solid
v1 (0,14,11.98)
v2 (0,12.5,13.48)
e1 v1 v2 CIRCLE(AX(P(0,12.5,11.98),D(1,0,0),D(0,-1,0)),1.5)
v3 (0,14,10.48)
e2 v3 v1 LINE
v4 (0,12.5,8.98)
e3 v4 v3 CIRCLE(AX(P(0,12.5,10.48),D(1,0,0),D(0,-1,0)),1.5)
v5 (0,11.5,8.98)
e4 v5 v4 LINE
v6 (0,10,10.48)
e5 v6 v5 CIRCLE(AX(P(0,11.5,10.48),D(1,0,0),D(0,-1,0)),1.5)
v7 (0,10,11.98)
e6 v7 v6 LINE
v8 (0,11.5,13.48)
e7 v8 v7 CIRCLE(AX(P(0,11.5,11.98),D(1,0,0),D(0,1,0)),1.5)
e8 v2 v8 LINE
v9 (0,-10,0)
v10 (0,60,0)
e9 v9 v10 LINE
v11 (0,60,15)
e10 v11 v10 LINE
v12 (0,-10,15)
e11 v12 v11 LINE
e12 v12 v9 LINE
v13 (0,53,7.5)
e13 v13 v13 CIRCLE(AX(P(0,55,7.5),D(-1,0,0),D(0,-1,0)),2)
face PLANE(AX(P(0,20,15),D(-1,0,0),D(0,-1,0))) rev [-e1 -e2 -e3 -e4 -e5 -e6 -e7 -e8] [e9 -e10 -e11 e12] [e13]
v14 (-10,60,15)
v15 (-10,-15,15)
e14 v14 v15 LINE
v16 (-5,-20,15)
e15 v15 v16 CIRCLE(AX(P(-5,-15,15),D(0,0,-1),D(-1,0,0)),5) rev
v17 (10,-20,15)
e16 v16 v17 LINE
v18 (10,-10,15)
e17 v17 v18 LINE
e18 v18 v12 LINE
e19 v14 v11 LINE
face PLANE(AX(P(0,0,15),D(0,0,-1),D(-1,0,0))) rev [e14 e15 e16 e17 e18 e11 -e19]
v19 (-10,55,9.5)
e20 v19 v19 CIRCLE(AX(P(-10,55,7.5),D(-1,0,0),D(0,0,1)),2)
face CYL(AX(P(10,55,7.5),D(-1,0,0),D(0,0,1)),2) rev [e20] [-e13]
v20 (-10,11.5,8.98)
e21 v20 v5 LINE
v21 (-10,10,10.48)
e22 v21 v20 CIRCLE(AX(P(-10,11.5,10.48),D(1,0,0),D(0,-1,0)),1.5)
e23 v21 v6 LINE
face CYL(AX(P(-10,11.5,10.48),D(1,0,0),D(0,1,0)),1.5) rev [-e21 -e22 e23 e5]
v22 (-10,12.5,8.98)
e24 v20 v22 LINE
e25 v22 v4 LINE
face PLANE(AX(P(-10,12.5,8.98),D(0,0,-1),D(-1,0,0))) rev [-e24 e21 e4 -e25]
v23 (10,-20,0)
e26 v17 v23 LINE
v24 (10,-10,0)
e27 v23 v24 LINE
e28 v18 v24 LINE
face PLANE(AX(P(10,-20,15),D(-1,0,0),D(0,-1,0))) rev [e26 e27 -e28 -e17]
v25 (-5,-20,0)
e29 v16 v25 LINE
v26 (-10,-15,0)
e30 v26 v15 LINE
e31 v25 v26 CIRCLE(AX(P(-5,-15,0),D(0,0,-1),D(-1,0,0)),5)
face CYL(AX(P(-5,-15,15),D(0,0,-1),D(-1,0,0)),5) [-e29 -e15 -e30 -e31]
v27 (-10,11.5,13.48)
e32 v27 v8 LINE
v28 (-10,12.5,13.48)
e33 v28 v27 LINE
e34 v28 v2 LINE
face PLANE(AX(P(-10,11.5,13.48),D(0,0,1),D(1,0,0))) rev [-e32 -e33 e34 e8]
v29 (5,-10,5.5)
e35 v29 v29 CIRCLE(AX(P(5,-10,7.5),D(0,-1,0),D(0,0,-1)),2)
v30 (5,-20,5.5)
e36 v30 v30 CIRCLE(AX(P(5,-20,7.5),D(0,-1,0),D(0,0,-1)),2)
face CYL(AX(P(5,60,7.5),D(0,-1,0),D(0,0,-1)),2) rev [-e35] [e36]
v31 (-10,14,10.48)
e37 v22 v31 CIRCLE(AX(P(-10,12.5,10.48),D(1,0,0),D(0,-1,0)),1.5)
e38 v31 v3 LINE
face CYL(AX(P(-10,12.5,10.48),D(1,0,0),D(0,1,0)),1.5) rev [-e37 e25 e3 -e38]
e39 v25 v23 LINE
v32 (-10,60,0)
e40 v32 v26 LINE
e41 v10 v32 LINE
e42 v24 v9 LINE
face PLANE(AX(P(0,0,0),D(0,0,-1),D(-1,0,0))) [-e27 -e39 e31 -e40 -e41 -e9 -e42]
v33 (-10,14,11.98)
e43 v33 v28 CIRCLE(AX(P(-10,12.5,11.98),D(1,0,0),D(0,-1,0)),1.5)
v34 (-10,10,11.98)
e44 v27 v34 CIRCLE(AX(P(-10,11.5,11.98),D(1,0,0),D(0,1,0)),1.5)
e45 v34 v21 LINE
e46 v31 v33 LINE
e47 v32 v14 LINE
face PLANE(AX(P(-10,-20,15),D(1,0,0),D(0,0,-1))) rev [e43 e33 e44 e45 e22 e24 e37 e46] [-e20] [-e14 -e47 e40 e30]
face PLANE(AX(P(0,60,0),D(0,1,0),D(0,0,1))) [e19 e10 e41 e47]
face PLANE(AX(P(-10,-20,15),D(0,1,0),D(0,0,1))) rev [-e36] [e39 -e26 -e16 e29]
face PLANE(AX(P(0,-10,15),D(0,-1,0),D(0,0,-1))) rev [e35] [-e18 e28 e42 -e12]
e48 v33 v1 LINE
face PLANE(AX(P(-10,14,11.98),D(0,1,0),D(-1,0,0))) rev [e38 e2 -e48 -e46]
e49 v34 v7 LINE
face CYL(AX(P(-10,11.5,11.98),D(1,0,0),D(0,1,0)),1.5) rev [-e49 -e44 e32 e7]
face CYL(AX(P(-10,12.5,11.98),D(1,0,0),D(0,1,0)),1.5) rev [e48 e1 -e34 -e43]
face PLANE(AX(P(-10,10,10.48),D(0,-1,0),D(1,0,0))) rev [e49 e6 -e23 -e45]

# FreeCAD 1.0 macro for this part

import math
import FreeCAD as App
import Part
import Sketcher
from FreeCAD import Vector


def edges_at(feature, points):
    """Names of the edges that pass closest to the given points."""
    edges = feature.Shape.Edges
    near = lambda p: min(range(len(edges)), key=lambda i: edges[i].distToShape(Part.Vertex(*p))[0])
    return sorted({f"Edge{near(p) + 1}" for p in points})


def add_polygon(sketch, points):
    """Adds a closed chain of lines whose ends are joined by coincident constraints."""
    first, n = sketch.GeometryCount, len(points)
    for a, b in zip(points, points[1:] + points[:1]):
        sketch.addGeometry(Part.LineSegment(App.Vector(*a, 0), App.Vector(*b, 0)), False)
    for i in range(n):
        sketch.addConstraint(Sketcher.Constraint("Coincident", first + i, 2, first + (i + 1) % n, 1))

doc = App.newDocument("Part")
body = doc.addObject("PartDesign::Body", "Body")

# Sketch on XY plane
sketch1 = doc.addObject("Sketcher::SketchObject", "Sketch")
body.addObject(sketch1)
sketch1.AttachmentSupport = (doc.XY_Plane, [""])
sketch1.MapMode = "FlatFace"
add_polygon(sketch1, [(0, -10), (0, 20), (-10, 20), (-10, -20), (10, -20), (10, -10)])  # lines 0-5
sketch1.addConstraint([
    Sketcher.Constraint("Vertical", 0),
    Sketcher.Constraint("Horizontal", 1),
    Sketcher.Constraint("Vertical", 2),
    Sketcher.Constraint("Horizontal", 3),
    Sketcher.Constraint("Vertical", 4),
    Sketcher.Constraint("Horizontal", 5),
    Sketcher.Constraint("Symmetric", 1, 2, 3, 2, -1, 1),
    Sketcher.Constraint("PointOnObject", 0, 2, -2),
    Sketcher.Constraint("Equal", 5, 4),
    Sketcher.Constraint("DistanceX", 1, 2, 1, 1, 10.0),
    Sketcher.Constraint("DistanceY", 0, 1, 0, 2, 30.0),
])
pad1 = doc.addObject("PartDesign::Pad", "Pad")
body.addObject(pad1)
pad1.Profile = sketch1
pad1.Length = 15
doc.recompute()

fillet = doc.addObject("PartDesign::Fillet", "Fillet")
body.addObject(fillet)
fillet.Base = (pad1, edges_at(pad1, [(-10, -20, 7.5)]))
fillet.Radius = 5

# Sketch on XZ plane
sketch2 = doc.addObject("Sketcher::SketchObject", "Sketch001")
body.addObject(sketch2)
sketch2.AttachmentSupport = (doc.XZ_Plane, [""])
sketch2.MapMode = "FlatFace"
sketch2.AttachmentOffset = App.Placement(Vector(0, 0, -20), App.Rotation())
add_polygon(sketch2, [(-10, 0), (-10, 15), (0, 15), (0, 0)])  # lines 0-3
sketch2.addConstraint([
    Sketcher.Constraint("Vertical", 0),
    Sketcher.Constraint("Horizontal", 1),
    Sketcher.Constraint("Vertical", 2),
    Sketcher.Constraint("Horizontal", 3),
    Sketcher.Constraint("Coincident", 2, 2, -1, 1),
    Sketcher.Constraint("DistanceX", 1, 1, 1, 2, 10.0),
    Sketcher.Constraint("DistanceY", 0, 1, 0, 2, 15.0),
])
pad2 = doc.addObject("PartDesign::Pad", "Pad001")
body.addObject(pad2)
pad2.Profile = sketch2
pad2.Length = 40
pad2.Reversed = True

# Sketch on XZ plane
sketch3 = doc.addObject("Sketcher::SketchObject", "Sketch002")
body.addObject(sketch3)
sketch3.AttachmentSupport = (doc.XZ_Plane, [""])
sketch3.MapMode = "FlatFace"
sketch3.AttachmentOffset = App.Placement(Vector(0, 0, 20), App.Rotation())
sketch3.addGeometry(Part.Circle(Vector(5, 7.5, 0), Vector(0, 0, 1), 2), False)
sketch3.addConstraint([
    Sketcher.Constraint("Diameter", 0, 4.0),
    Sketcher.Constraint("DistanceX", -1, 1, 0, 3, 5.0),
    Sketcher.Constraint("DistanceY", -1, 1, 0, 3, 7.5),
])
pocket1 = doc.addObject("PartDesign::Pocket", "Pocket")
body.addObject(pocket1)
pocket1.Profile = sketch3
pocket1.Type = "ThroughAll"

# Sketch on YZ plane
sketch4 = doc.addObject("Sketcher::SketchObject", "Sketch003")
body.addObject(sketch4)
sketch4.AttachmentSupport = (doc.YZ_Plane, [""])
sketch4.MapMode = "FlatFace"
sketch4.addGeometry([
    Part.LineSegment(Vector(10, 12, 0), Vector(10, 10.5, 0)),  # 0
    Part.ArcOfCircle(Part.Circle(Vector(11.5, 10.5, 0), Vector(0, 0, 1), 1.5), math.radians(180), math.radians(270)),  # 1
    Part.LineSegment(Vector(11.5, 9, 0), Vector(12.5, 9, 0)),  # 2
    Part.ArcOfCircle(Part.Circle(Vector(12.5, 10.5, 0), Vector(0, 0, 1), 1.5), math.radians(-90), math.radians(0)),  # 3
    Part.LineSegment(Vector(14, 10.5, 0), Vector(14, 12, 0)),  # 4
    Part.ArcOfCircle(Part.Circle(Vector(12.5, 12, 0), Vector(0, 0, 1), 1.5), math.radians(0), math.radians(90)),  # 5
    Part.LineSegment(Vector(12.5, 13.5, 0), Vector(11.5, 13.5, 0)),  # 6
    Part.ArcOfCircle(Part.Circle(Vector(11.5, 12, 0), Vector(0, 0, 1), 1.5), math.radians(90), math.radians(180)),  # 7
], False)
sketch4.addConstraint([
    Sketcher.Constraint("Tangent", 0, 2, 1, 1),
    Sketcher.Constraint("Tangent", 1, 2, 2, 1),
    Sketcher.Constraint("Tangent", 2, 2, 3, 1),
    Sketcher.Constraint("Tangent", 3, 2, 4, 1),
    Sketcher.Constraint("Tangent", 4, 2, 5, 1),
    Sketcher.Constraint("Tangent", 5, 2, 6, 1),
    Sketcher.Constraint("Tangent", 6, 2, 7, 1),
    Sketcher.Constraint("Tangent", 7, 2, 0, 1),
    Sketcher.Constraint("Vertical", 0),
    Sketcher.Constraint("Horizontal", 2),
    Sketcher.Constraint("Vertical", 4),
    Sketcher.Constraint("Horizontal", 6),
    Sketcher.Constraint("Equal", 1, 3),
    Sketcher.Constraint("Equal", 3, 5),
    Sketcher.Constraint("Equal", 5, 7),
    Sketcher.Constraint("Radius", 1, 1.5),
    Sketcher.Constraint("DistanceX", 2, 1, 2, 2, 1.0),
    Sketcher.Constraint("DistanceY", 0, 2, 0, 1, 1.5),
    Sketcher.Constraint("DistanceX", -1, 1, 0, 2, 10.0),
    Sketcher.Constraint("DistanceY", -1, 1, 1, 3, 10.48),
])
pocket2 = doc.addObject("PartDesign::Pocket", "Pocket001")
body.addObject(pocket2)
pocket2.Profile = sketch4
pocket2.Type = "ThroughAll"

# Sketch on YZ plane
sketch5 = doc.addObject("Sketcher::SketchObject", "Sketch004")
body.addObject(sketch5)
sketch5.AttachmentSupport = (doc.YZ_Plane, [""])
sketch5.MapMode = "FlatFace"
sketch5.AttachmentOffset = App.Placement(Vector(0, 0, -10), App.Rotation())
sketch5.addGeometry(Part.Circle(Vector(55, 7.5, 0), Vector(0, 0, 1), 2), False)
sketch5.addConstraint([
    Sketcher.Constraint("Diameter", 0, 4.0),
    Sketcher.Constraint("DistanceX", -1, 1, 0, 3, 55.0),
    Sketcher.Constraint("DistanceY", -1, 1, 0, 3, 7.5),
])
pocket3 = doc.addObject("PartDesign::Pocket", "Pocket002")
body.addObject(pocket3)
pocket3.Profile = sketch5
pocket3.Type = "ThroughAll"
pocket3.Reversed = True

doc.recompute()
